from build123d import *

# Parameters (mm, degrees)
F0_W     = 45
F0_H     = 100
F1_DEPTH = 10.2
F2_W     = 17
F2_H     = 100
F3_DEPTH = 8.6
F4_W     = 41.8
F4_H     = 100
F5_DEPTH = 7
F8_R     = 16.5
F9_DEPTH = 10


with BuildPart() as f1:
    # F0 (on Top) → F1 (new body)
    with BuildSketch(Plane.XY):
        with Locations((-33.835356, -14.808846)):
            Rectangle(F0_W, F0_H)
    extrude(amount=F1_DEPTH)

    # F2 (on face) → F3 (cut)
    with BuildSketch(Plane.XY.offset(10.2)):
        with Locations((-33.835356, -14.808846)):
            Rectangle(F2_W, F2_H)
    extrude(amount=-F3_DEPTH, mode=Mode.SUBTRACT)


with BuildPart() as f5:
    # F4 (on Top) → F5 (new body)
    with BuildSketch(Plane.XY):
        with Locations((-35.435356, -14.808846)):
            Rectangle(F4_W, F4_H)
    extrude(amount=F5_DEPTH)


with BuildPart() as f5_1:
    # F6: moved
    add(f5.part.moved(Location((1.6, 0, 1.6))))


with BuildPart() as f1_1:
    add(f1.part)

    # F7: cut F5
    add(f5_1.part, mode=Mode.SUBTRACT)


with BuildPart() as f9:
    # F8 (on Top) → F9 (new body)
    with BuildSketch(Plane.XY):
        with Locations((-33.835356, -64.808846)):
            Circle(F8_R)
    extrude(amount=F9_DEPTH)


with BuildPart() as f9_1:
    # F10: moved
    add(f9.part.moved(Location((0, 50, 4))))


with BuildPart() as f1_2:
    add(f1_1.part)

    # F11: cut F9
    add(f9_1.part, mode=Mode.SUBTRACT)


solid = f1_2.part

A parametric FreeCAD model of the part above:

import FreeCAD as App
import Part
import Sketcher

V = App.Vector

doc = App.newDocument("Part")
body = doc.addObject("PartDesign::Body", "Body")

sketch1 = doc.addObject("Sketcher::SketchObject", "Sketch")
body.addObject(sketch1)
sketch1.AttachmentSupport = (doc.XY_Plane, [""])
sketch1.MapMode = "FlatFace"
sketch1.addGeometry([
    Part.LineSegment(V(-56, 35, 0), V(-56, -65, 0)),
    Part.LineSegment(V(-56, -65, 0), V(-11, -65, 0)),
    Part.LineSegment(V(-11, -65, 0), V(-11, 35, 0)),
    Part.LineSegment(V(-11, 35, 0), V(-56, 35, 0)),
], False)
sketch1.addConstraint([
    Sketcher.Constraint("Coincident", 0, 2, 1, 1),
    Sketcher.Constraint("Coincident", 1, 2, 2, 1),
    Sketcher.Constraint("Coincident", 2, 2, 3, 1),
    Sketcher.Constraint("Coincident", 3, 2, 0, 1),
    Sketcher.Constraint("Vertical", 0),
    Sketcher.Constraint("Horizontal", 1),
    Sketcher.Constraint("Vertical", 2),
    Sketcher.Constraint("Horizontal", 3),
    Sketcher.Constraint("DistanceX", 1, 1, 1, 2, 45.0),
    Sketcher.Constraint("DistanceY", 0, 2, 0, 1, 100.0),
    Sketcher.Constraint("DistanceX", 0, 2, -1, 1, 56.335356),
    Sketcher.Constraint("DistanceY", 0, 2, -1, 1, 64.808846),
])
pad1 = doc.addObject("PartDesign::Pad", "Pad")
body.addObject(pad1)
pad1.Profile = sketch1
pad1.Length = 10.2

sketch2 = doc.addObject("Sketcher::SketchObject", "Sketch001")
body.addObject(sketch2)
sketch2.AttachmentSupport = (doc.XY_Plane, [""])
sketch2.MapMode = "FlatFace"
sketch2.AttachmentOffset = App.Placement(V(0, 0, 10.2), App.Rotation())
sketch2.addGeometry([
    Part.LineSegment(V(-42, 35, 0), V(-42, -65, 0)),
    Part.LineSegment(V(-42, -65, 0), V(-25, -65, 0)),
    Part.LineSegment(V(-25, -65, 0), V(-25, 35, 0)),
    Part.LineSegment(V(-25, 35, 0), V(-42, 35, 0)),
], False)
sketch2.addConstraint([
    Sketcher.Constraint("Coincident", 0, 2, 1, 1),
    Sketcher.Constraint("Coincident", 1, 2, 2, 1),
    Sketcher.Constraint("Coincident", 2, 2, 3, 1),
    Sketcher.Constraint("Coincident", 3, 2, 0, 1),
    Sketcher.Constraint("Vertical", 0),
    Sketcher.Constraint("Horizontal", 1),
    Sketcher.Constraint("Vertical", 2),
    Sketcher.Constraint("Horizontal", 3),
    Sketcher.Constraint("DistanceX", 1, 1, 1, 2, 17.0),
    Sketcher.Constraint("DistanceY", 0, 2, 0, 1, 100.0),
    Sketcher.Constraint("DistanceX", 0, 2, -1, 1, 42.335356),
    Sketcher.Constraint("DistanceY", 0, 2, -1, 1, 64.808846),
])
pocket1 = doc.addObject("PartDesign::Pocket", "Pocket")
body.addObject(pocket1)
pocket1.Profile = sketch2
pocket1.Length = 8.6
body2 = doc.addObject("PartDesign::Body", "Body001")

sketch3 = doc.addObject("Sketcher::SketchObject", "Sketch002")
body2.addObject(sketch3)
sketch3.AttachmentSupport = (doc.getObject("XY_Plane001"), [""])
sketch3.MapMode = "FlatFace"
sketch3.addGeometry([
    Part.LineSegment(V(-56, 35, 0), V(-56, -65, 0)),
    Part.LineSegment(V(-56, -65, 0), V(-15, -65, 0)),
    Part.LineSegment(V(-15, -65, 0), V(-15, 35, 0)),
    Part.LineSegment(V(-15, 35, 0), V(-56, 35, 0)),
], False)
sketch3.addConstraint([
    Sketcher.Constraint("Coincident", 0, 2, 1, 1),
    Sketcher.Constraint("Coincident", 1, 2, 2, 1),
    Sketcher.Constraint("Coincident", 2, 2, 3, 1),
    Sketcher.Constraint("Coincident", 3, 2, 0, 1),
    Sketcher.Constraint("Vertical", 0),
    Sketcher.Constraint("Horizontal", 1),
    Sketcher.Constraint("Vertical", 2),
    Sketcher.Constraint("Horizontal", 3),
    Sketcher.Constraint("DistanceY", 0, 2, 0, 1, 100.0),
    Sketcher.Constraint("DistanceX", 1, 1, 1, 2, 41.8),
    Sketcher.Constraint("DistanceX", 0, 2, -1, 1, 56.335356),
    Sketcher.Constraint("DistanceY", 0, 2, -1, 1, 64.808846),
])
pad2 = doc.addObject("PartDesign::Pad", "Pad001")
body2.addObject(pad2)
pad2.Profile = sketch3
pad2.Length = 7
body3 = doc.addObject("PartDesign::Body", "Body002")
doc.recompute()

body2.Placement = App.Placement(V(1.6, 0, 1.6), App.Rotation(V(0, 0, 1), 0))
boolean = doc.addObject("PartDesign::Boolean", "Boolean")
body3.addObject(boolean)
boolean.Type = "Fuse"
boolean.addObjects([body2])
doc.recompute()

boolean2 = doc.addObject("PartDesign::Boolean", "Boolean001")
body.addObject(boolean2)
boolean2.Type = "Cut"
boolean2.addObjects([body3])
body4 = doc.addObject("PartDesign::Body", "Body003")

sketch4 = doc.addObject("Sketcher::SketchObject", "Sketch003")
body4.addObject(sketch4)
sketch4.AttachmentSupport = (doc.getObject("XY_Plane003"), [""])
sketch4.MapMode = "FlatFace"
sketch4.addGeometry(Part.Circle(V(-34, -65, 0), V(0, 0, 1), 16), False)
sketch4.addConstraint([
    Sketcher.Constraint("Diameter", 0, 33.0),
    Sketcher.Constraint("DistanceX", 0, 3, -1, 1, 33.835356),
    Sketcher.Constraint("DistanceY", 0, 3, -1, 1, 64.808846),
])
pad3 = doc.addObject("PartDesign::Pad", "Pad002")
body4.addObject(pad3)
pad3.Profile = sketch4
pad3.Length = 10
body5 = doc.addObject("PartDesign::Body", "Body004")
doc.recompute()

body4.Placement = App.Placement(V(0, 50, 4), App.Rotation(V(0, 0, 1), 0))
boolean3 = doc.addObject("PartDesign::Boolean", "Boolean002")
body5.addObject(boolean3)
boolean3.Type = "Fuse"
boolean3.addObjects([body4])
doc.recompute()

boolean4 = doc.addObject("PartDesign::Boolean", "Boolean003")
body.addObject(boolean4)
boolean4.Type = "Cut"
boolean4.addObjects([body5])

doc.recompute()
